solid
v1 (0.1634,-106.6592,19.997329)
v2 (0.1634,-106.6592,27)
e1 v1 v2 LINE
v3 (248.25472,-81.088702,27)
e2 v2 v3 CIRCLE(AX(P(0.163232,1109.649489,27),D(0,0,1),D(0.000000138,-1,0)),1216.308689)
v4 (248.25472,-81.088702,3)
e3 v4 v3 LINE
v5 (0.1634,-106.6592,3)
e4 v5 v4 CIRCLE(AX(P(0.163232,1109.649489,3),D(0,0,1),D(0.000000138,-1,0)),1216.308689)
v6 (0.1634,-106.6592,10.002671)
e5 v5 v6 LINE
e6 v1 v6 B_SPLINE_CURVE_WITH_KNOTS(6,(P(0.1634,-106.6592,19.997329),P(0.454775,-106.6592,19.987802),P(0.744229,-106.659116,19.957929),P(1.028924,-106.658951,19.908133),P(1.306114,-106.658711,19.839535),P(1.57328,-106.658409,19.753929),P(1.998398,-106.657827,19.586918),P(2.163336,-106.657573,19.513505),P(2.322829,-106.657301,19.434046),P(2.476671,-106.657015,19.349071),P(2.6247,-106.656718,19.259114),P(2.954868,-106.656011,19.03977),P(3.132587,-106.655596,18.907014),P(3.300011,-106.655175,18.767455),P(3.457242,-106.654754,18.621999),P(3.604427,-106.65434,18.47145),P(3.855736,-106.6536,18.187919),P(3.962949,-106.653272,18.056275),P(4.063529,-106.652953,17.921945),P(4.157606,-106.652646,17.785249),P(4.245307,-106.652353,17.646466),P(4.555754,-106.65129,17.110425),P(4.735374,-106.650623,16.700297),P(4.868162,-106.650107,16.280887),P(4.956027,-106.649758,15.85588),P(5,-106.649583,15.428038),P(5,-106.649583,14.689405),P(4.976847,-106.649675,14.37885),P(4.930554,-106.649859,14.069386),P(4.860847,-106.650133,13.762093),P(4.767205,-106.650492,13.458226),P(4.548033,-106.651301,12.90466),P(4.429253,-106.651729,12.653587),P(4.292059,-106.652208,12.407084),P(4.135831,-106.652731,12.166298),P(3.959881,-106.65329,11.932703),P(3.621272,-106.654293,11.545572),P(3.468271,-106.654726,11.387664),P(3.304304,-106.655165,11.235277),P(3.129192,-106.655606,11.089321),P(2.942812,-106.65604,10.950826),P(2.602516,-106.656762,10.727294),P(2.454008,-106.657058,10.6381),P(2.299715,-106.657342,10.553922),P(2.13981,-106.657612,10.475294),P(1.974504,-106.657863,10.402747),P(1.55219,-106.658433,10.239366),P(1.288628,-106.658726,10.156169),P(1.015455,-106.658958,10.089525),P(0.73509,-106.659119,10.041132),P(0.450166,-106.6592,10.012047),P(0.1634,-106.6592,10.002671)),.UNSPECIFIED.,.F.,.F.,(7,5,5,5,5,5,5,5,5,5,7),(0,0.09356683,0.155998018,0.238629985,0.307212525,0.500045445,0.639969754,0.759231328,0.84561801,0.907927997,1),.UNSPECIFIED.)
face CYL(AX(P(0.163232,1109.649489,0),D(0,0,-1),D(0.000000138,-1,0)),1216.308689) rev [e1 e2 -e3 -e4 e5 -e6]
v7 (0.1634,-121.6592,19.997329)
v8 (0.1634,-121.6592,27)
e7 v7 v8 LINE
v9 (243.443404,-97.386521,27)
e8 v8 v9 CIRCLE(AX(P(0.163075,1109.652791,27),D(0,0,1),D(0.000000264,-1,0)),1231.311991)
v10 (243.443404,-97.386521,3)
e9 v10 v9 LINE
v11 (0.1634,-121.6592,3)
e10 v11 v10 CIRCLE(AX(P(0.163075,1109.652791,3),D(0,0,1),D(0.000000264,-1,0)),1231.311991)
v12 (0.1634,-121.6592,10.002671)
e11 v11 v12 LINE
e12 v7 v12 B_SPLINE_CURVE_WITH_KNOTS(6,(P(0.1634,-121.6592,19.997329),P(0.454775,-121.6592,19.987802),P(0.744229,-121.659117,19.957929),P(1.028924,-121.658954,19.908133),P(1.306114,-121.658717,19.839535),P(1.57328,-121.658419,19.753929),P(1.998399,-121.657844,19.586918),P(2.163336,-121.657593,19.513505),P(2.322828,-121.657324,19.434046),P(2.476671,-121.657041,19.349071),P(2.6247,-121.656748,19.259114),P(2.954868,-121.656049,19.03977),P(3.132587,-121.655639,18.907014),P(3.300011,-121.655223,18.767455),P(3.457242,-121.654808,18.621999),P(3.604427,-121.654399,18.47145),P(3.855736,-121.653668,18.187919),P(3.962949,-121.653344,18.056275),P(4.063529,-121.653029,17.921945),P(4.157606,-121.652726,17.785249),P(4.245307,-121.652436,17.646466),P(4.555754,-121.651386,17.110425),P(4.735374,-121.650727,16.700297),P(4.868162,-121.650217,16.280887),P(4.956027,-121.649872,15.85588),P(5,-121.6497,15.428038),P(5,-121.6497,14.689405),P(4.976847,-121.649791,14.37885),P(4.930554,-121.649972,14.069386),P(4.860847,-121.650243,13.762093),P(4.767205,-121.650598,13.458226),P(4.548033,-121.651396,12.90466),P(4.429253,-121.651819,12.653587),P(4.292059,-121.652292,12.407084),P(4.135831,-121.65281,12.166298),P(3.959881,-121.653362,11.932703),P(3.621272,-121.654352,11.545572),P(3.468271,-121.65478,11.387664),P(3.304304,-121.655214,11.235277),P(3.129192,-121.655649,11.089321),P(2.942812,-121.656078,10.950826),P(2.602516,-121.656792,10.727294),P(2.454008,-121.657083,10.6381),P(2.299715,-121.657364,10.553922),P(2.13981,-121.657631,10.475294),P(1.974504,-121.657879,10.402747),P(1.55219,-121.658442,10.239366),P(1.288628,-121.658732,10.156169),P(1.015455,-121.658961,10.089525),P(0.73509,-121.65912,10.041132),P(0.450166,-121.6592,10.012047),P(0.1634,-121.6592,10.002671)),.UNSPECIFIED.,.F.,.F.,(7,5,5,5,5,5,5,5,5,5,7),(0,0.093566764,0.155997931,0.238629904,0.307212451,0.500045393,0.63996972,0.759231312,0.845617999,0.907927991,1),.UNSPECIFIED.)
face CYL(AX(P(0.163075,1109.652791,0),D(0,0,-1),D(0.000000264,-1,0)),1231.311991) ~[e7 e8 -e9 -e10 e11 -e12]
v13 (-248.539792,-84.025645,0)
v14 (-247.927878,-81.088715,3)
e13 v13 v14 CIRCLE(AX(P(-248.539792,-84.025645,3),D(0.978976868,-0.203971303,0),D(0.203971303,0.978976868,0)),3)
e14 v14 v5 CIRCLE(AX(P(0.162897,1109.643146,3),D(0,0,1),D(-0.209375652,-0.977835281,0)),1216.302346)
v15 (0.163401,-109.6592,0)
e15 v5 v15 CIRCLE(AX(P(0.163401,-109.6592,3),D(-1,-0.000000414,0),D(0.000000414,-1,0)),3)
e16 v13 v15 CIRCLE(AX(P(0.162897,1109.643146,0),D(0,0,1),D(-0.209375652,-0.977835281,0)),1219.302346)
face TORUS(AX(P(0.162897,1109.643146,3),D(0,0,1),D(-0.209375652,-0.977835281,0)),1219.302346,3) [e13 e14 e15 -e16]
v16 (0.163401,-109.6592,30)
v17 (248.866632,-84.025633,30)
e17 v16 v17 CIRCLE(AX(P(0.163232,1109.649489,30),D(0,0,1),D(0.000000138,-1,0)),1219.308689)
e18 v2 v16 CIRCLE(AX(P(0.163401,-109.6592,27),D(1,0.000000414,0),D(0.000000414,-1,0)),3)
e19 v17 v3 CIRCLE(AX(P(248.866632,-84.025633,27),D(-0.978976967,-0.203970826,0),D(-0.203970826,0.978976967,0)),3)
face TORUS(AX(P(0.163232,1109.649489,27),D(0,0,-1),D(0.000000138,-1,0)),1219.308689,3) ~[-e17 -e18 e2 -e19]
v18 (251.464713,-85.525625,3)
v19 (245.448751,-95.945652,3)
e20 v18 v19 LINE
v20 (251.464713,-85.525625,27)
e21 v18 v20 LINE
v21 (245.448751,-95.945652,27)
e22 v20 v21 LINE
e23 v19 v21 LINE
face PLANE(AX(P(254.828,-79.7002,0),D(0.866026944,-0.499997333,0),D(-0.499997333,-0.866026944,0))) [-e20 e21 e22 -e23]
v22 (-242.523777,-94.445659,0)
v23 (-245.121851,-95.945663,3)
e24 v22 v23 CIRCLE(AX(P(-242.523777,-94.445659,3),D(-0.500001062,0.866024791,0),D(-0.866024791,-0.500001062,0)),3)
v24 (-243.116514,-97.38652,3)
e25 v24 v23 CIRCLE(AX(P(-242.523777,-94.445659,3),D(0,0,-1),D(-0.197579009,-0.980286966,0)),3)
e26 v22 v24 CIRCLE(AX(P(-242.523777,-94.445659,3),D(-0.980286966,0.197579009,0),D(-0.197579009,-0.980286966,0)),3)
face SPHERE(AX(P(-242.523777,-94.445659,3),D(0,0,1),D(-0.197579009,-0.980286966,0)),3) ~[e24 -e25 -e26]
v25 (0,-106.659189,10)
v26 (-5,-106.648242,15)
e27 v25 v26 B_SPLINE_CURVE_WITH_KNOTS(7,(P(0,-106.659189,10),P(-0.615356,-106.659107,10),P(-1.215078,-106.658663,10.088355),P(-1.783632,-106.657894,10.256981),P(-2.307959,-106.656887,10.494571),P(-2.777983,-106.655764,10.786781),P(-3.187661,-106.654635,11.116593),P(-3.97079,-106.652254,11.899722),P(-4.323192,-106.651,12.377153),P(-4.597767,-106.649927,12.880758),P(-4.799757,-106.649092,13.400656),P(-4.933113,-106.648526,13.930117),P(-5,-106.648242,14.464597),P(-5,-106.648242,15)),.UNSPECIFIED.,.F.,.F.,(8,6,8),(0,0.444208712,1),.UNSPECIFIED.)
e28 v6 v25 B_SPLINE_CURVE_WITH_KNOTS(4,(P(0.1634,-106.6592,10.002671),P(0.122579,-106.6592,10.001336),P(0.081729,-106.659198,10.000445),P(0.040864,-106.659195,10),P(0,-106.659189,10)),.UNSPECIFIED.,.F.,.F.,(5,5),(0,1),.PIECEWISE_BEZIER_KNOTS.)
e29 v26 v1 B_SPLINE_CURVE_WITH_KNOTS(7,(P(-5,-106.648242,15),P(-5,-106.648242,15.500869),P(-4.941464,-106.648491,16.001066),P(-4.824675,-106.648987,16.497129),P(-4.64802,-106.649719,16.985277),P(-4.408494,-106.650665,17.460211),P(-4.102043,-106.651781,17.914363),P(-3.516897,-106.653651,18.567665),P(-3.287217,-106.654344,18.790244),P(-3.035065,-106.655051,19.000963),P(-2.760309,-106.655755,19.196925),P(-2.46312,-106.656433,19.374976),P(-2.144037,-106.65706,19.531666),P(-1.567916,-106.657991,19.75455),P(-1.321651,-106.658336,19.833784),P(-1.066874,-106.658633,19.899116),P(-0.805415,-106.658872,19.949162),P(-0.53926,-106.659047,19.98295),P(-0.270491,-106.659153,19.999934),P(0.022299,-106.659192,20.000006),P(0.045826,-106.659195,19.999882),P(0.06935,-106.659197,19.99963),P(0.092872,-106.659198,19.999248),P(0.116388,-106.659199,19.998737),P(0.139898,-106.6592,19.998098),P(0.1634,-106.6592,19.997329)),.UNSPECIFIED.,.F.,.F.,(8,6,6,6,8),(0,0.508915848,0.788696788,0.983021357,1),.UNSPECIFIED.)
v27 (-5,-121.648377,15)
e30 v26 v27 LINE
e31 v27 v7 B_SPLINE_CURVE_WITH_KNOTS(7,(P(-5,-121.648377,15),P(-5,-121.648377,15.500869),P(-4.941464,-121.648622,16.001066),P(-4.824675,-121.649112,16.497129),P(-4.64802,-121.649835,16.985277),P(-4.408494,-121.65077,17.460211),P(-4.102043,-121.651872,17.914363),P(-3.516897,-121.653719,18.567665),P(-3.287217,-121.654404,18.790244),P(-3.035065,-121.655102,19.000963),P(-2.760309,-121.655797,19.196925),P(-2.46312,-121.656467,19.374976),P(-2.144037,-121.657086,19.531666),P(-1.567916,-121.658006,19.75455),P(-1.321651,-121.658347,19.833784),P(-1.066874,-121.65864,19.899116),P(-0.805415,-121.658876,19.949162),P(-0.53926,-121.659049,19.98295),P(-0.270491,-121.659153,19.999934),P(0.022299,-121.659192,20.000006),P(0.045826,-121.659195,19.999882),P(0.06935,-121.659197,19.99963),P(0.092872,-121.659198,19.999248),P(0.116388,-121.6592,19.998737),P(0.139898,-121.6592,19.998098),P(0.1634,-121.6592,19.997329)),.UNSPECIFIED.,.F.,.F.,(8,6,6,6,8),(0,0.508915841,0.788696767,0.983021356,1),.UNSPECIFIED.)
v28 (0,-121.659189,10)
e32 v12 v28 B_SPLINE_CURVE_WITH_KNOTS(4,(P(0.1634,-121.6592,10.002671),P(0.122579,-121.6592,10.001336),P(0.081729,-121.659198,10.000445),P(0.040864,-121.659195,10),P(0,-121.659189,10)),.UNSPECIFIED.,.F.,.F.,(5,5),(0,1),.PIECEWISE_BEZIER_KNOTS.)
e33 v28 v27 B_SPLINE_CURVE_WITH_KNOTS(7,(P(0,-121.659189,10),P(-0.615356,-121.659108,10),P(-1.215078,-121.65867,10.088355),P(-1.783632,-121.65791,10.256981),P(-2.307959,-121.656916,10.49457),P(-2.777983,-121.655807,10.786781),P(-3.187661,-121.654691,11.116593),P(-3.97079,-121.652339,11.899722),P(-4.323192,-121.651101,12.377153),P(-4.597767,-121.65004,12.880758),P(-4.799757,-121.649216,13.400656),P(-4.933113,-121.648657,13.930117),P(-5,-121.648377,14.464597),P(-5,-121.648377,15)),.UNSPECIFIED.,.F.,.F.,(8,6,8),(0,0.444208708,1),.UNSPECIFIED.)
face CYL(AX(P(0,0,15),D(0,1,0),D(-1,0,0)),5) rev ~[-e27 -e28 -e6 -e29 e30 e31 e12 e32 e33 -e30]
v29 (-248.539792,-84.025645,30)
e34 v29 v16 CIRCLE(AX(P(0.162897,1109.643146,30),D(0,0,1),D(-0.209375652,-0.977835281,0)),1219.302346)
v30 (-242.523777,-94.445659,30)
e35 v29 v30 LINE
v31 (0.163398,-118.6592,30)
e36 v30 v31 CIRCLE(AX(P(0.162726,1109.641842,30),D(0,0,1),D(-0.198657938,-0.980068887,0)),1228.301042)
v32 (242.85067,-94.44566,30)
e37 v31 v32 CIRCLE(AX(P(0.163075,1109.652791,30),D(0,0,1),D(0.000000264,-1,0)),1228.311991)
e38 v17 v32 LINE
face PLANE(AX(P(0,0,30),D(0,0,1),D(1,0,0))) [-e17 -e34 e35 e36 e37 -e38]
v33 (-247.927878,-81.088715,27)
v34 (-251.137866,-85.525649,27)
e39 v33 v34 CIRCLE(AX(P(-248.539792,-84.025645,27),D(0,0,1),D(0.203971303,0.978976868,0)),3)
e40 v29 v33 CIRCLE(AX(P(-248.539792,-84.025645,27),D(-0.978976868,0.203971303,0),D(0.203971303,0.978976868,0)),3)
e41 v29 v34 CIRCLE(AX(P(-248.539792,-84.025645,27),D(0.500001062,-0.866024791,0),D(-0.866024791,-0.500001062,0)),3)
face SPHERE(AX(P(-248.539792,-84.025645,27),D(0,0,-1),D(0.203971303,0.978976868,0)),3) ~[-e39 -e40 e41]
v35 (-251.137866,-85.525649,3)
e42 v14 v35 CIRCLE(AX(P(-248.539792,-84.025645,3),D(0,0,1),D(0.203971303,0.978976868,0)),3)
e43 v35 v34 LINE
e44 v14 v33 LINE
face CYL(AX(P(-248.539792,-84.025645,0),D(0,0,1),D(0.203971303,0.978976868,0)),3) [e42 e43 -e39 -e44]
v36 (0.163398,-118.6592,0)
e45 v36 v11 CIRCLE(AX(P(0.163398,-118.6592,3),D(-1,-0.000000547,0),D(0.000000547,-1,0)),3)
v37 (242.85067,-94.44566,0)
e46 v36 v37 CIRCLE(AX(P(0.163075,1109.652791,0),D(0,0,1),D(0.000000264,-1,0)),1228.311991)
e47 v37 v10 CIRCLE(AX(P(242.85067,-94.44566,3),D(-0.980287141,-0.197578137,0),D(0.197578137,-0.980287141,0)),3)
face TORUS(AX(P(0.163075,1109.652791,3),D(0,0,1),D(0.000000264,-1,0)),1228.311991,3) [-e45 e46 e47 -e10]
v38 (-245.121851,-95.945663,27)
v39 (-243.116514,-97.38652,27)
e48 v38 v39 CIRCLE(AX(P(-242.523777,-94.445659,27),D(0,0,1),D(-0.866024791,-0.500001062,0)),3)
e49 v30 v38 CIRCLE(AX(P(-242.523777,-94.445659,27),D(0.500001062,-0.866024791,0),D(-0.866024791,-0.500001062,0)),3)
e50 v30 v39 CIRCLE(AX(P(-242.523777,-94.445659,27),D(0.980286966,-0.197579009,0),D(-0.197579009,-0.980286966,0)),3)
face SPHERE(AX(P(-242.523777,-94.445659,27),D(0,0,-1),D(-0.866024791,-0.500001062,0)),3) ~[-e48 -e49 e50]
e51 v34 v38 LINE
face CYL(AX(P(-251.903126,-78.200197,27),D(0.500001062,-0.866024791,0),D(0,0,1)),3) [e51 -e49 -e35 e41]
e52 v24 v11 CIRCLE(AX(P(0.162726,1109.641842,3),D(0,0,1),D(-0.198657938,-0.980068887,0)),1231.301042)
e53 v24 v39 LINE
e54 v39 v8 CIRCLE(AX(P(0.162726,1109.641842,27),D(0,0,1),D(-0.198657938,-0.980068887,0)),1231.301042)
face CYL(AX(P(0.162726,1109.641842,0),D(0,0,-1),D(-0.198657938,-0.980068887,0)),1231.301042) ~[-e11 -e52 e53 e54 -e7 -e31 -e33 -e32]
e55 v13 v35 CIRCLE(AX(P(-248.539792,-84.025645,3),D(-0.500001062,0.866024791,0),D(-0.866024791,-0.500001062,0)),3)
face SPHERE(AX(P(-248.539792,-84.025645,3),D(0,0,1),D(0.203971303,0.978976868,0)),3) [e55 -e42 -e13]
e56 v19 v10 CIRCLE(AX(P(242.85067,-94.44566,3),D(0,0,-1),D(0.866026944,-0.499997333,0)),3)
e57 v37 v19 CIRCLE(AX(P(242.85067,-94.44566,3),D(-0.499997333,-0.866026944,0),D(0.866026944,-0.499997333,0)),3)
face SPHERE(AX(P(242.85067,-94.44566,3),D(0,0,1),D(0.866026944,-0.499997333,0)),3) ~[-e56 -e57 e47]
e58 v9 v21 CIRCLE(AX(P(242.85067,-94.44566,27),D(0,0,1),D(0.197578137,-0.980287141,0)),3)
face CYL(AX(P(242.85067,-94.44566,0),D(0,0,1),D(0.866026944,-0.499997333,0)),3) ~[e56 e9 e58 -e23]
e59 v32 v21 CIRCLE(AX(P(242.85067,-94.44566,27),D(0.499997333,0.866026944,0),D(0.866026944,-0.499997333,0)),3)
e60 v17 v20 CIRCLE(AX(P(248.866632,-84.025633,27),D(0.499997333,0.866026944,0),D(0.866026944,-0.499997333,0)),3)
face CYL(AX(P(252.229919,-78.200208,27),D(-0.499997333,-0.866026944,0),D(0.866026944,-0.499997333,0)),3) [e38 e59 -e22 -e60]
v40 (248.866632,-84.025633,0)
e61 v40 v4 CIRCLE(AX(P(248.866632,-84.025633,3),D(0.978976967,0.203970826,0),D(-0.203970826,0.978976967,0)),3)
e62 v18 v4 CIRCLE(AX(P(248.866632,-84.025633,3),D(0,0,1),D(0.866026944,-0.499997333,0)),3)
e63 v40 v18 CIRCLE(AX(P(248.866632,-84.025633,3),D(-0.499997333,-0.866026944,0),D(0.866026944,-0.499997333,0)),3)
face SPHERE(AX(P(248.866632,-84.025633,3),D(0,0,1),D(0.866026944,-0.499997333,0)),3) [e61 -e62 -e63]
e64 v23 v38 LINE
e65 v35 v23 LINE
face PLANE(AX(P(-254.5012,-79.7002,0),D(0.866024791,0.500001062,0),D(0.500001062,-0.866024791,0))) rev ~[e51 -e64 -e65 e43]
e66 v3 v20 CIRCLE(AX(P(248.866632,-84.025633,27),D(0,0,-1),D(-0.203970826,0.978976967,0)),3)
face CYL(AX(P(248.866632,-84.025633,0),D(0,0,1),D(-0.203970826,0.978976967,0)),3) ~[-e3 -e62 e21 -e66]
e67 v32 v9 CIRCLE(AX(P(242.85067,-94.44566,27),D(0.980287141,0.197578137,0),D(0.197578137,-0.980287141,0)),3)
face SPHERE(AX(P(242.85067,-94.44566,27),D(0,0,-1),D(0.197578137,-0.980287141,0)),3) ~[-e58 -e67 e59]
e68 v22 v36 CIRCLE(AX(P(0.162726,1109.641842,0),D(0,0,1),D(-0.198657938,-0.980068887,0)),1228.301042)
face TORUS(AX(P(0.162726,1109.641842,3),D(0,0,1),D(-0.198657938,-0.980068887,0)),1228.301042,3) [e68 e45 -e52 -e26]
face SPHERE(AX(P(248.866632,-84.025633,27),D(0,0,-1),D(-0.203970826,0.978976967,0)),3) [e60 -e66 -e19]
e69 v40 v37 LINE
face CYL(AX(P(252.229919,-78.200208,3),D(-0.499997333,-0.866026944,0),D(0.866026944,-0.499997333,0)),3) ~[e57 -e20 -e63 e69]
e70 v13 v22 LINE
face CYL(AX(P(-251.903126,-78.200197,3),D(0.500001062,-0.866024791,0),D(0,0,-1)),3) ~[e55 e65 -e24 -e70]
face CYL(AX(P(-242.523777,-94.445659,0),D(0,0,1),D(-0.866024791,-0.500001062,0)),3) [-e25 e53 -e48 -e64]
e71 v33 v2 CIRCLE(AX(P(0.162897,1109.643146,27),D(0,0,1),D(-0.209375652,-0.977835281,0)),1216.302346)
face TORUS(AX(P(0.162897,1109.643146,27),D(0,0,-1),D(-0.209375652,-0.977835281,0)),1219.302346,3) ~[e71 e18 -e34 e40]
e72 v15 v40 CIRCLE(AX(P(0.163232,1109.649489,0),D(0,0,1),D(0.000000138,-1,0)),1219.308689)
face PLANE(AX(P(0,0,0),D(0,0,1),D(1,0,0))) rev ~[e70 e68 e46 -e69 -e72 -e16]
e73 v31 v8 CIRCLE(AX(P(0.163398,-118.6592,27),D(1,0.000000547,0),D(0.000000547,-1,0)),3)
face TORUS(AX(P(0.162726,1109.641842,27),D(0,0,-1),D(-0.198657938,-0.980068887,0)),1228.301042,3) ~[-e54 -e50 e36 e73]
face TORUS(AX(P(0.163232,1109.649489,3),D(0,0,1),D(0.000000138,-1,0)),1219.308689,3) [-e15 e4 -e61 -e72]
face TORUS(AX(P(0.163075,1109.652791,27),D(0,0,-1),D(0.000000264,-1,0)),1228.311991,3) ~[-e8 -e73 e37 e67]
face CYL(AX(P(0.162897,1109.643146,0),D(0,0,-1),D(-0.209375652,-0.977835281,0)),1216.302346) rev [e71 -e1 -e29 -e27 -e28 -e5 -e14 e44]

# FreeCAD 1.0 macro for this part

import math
import FreeCAD as App
import Part
import Sketcher
from FreeCAD import Vector
Q = App.Units.Quantity


def edges_at(feature, points):
    """Names of the edges that pass closest to the given points."""
    edges = feature.Shape.Edges
    near = lambda p: min(range(len(edges)), key=lambda i: edges[i].distToShape(Part.Vertex(*p))[0])
    return sorted({f"Edge{near(p) + 1}" for p in points})

doc = App.newDocument("Part")
params = doc.addObject("Spreadsheet::Sheet", "Params")
for row, (alias, value) in enumerate([
    ("pad1_length", "30 mm"),
    ("fillet_radius", "3 mm"),
    ("sketch2_diameter", "10 mm"),
    ("pocket1_length", "300 mm"),
], start=1):
    params.set(f"A{row}", alias)
    params.set(f"B{row}", "=" + value)
    params.setAlias(f"B{row}", alias)

body = doc.addObject("PartDesign::Body", "Body")

sketch1 = doc.addObject("Sketcher::SketchObject", "Sketch")
body.addObject(sketch1)
sketch1.AttachmentSupport = (doc.XY_Plane, [""])
sketch1.MapMode = "FlatFace"
sketch1.addGeometry([
    Part.ArcOfCircle(Part.Circle(Vector(0, 1110, 0), Vector(0, 0, 1), 1216), math.radians(-90), math.radians(-77.91)),
    Part.ArcOfCircle(Part.Circle(Vector(0, 1110, 0), Vector(0, 0, 1), 1216), math.radians(-102.09), math.radians(-90)),
    Part.LineSegment(Vector(-255, -80, 0), Vector(-244, -97, 0)),
    Part.ArcOfCircle(Part.Circle(Vector(0, 1110, 0), Vector(0, 0, 1), 1231), math.radians(-101.46), math.radians(-90)),
    Part.ArcOfCircle(Part.Circle(Vector(0, 1110, 0), Vector(0, 0, 1), 1231), math.radians(-90), math.radians(-78.54)),
    Part.LineSegment(Vector(245, -97, 0), Vector(255, -80, 0)),
], False)
sketch1.addConstraint([
    Sketcher.Constraint("Coincident", 0, 1, 1, 2),
    Sketcher.Constraint("Coincident", 1, 1, 2, 1),
    Sketcher.Constraint("Coincident", 2, 2, 3, 1),
    Sketcher.Constraint("Coincident", 3, 2, 4, 1),
    Sketcher.Constraint("Coincident", 4, 2, 5, 1),
    Sketcher.Constraint("Coincident", 5, 2, 0, 2),
    Sketcher.Constraint("Vertical", 1, 3, 3, 3),
    Sketcher.Constraint("Vertical", 1, 3, 4, 3),
    Sketcher.Constraint("Vertical", 0, 1, 3, 2),
    Sketcher.Constraint("Equal", 2, 5),
    Sketcher.Constraint("DistanceY", 3, 2, 0, 1, Q("15 mm")),
    Sketcher.Constraint("Angle", 2, Q("-60 deg")),
    Sketcher.Constraint("Angle", 5, Q("60.0002 deg")),
    Sketcher.Constraint("Radius", 3, Q("1231.301 mm")),
    Sketcher.Constraint("Radius", 4, Q("1231.312 mm")),
    Sketcher.Constraint("Radius", 0, Q("1216.3087 mm")),
    Sketcher.Constraint("Radius", 1, Q("1216.3023 mm")),
    Sketcher.Constraint("DistanceX", -1, 1, 1, 3, Q("0.163 mm")),
    Sketcher.Constraint("DistanceX", 2, 2, -1, 1, Q("244.445 mm")),
    Sketcher.Constraint("DistanceY", 2, 2, -1, 1, Q("97.118 mm")),
    Sketcher.Constraint("DistanceX", -1, 1, 5, 2, Q("254.828 mm")),
    Sketcher.Constraint("DistanceX", -1, 1, 0, 1, Q("0.1634 mm")),
])
pad1 = doc.addObject("PartDesign::Pad", "Pad")
body.addObject(pad1)
pad1.Profile = sketch1
pad1.setExpression("Length", "Params.pad1_length")
doc.recompute()

fillet = doc.addObject("PartDesign::Fillet", "Fillet")
body.addObject(fillet)
fillet.Base = (pad1, edges_at(pad1, [
    (-127.88, -99.901, 30),
    (123.082, -115.509, 30),
    (128.207, -99.901, 0),
    (249.8, -88.409, 30),
    (254.828, -79.7, 15),
    (244.772, -97.118, 15),
    (249.8, -88.409, 0),
    (123.082, -115.509, 0),
    (-249.473, -88.409, 0),
    (-244.445, -97.118, 15),
    (-249.473, -88.409, 30),
    (-254.501, -79.7, 15),
]))
fillet.setExpression("Radius", "Params.fillet_radius")

sketch2 = doc.addObject("Sketcher::SketchObject", "Sketch001")
body.addObject(sketch2)
sketch2.AttachmentSupport = (doc.XZ_Plane, [""])
sketch2.MapMode = "FlatFace"
sketch2.addGeometry(Part.Circle(Vector(0, 15, 0), Vector(0, 0, 1), 5), False)
sketch2.addConstraint([
    Sketcher.Constraint("PointOnObject", 0, 3, -2),
    Sketcher.Constraint("Diameter", 0, Q("10 mm")),
    Sketcher.Constraint("DistanceY", -1, 1, 0, 3, Q("15 mm")),
])
sketch2.setExpression("Constraints[1]", "Params.sketch2_diameter")
pocket1 = doc.addObject("PartDesign::Pocket", "Pocket")
body.addObject(pocket1)
pocket1.Profile = sketch2
pocket1.setExpression("Length", "Params.pocket1_length")
pocket1.Reversed = True

doc.recompute()
